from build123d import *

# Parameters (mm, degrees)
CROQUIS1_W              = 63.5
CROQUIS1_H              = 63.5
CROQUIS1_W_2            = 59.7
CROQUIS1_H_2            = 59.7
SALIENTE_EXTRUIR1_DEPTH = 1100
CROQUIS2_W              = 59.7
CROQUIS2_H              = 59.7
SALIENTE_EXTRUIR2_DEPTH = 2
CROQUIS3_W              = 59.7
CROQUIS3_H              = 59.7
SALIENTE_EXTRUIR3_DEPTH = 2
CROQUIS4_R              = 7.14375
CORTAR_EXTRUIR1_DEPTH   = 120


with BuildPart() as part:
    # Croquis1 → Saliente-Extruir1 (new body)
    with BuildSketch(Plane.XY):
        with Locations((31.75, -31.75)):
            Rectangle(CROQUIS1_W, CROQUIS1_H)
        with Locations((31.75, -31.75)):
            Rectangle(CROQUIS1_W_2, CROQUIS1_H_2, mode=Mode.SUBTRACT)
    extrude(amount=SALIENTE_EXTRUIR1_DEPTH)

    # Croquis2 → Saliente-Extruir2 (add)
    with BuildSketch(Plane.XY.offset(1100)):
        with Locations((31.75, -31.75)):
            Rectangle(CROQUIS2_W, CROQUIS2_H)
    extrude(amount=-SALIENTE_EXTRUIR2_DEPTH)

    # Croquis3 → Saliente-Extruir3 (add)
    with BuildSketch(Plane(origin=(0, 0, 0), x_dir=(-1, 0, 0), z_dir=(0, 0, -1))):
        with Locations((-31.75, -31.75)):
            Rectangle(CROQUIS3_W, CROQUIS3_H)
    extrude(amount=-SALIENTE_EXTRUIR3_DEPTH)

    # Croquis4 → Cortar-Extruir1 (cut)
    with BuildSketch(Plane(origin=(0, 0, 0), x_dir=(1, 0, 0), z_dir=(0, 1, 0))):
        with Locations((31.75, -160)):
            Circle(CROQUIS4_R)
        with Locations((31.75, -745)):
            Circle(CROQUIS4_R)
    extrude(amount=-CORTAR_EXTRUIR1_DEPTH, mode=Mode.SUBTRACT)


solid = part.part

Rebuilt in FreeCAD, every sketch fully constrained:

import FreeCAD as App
import Part
import Sketcher

V = App.Vector
Q = App.Units.Quantity

doc = App.newDocument("Part")
body = doc.addObject("PartDesign::Body", "Body")

# Sketch on XY plane
sketch1 = body.newObject("Sketcher::SketchObject", "Sketch")
sketch1.AttachmentSupport = (doc.getObject("XY_Plane"), [""])
sketch1.MapMode = "FlatFace"
sketch1.addGeometry(Part.LineSegment(V(0, 0, 0), V(0, -63.5, 0)), False)
sketch1.addGeometry(Part.LineSegment(V(0, -63.5, 0), V(63.5, -63.5, 0)), False)
sketch1.addGeometry(Part.LineSegment(V(63.5, -63.5, 0), V(63.5, 0, 0)), False)
sketch1.addGeometry(Part.LineSegment(V(63.5, 0, 0), V(0, 0, 0)), False)
sketch1.addGeometry(Part.LineSegment(V(61.6, -61.6, 0), V(1.9, -61.6, 0)), False)
sketch1.addGeometry(Part.LineSegment(V(1.9, -61.6, 0), V(1.9, -1.9, 0)), False)
sketch1.addGeometry(Part.LineSegment(V(1.9, -1.9, 0), V(61.6, -1.9, 0)), False)
sketch1.addGeometry(Part.LineSegment(V(61.6, -1.9, 0), V(61.6, -61.6, 0)), False)
sketch1.addConstraint(Sketcher.Constraint("Coincident", 0, 2, 1, 1))
sketch1.addConstraint(Sketcher.Constraint("Coincident", 1, 2, 2, 1))
sketch1.addConstraint(Sketcher.Constraint("Coincident", 2, 2, 3, 1))
sketch1.addConstraint(Sketcher.Constraint("Coincident", 3, 2, 0, 1))
sketch1.addConstraint(Sketcher.Constraint("Coincident", 4, 2, 5, 1))
sketch1.addConstraint(Sketcher.Constraint("Coincident", 5, 2, 6, 1))
sketch1.addConstraint(Sketcher.Constraint("Coincident", 6, 2, 7, 1))
sketch1.addConstraint(Sketcher.Constraint("Coincident", 7, 2, 4, 1))
sketch1.addConstraint(Sketcher.Constraint("Vertical", 0))
sketch1.addConstraint(Sketcher.Constraint("Horizontal", 1))
sketch1.addConstraint(Sketcher.Constraint("Vertical", 2))
sketch1.addConstraint(Sketcher.Constraint("Horizontal", 3))
sketch1.addConstraint(Sketcher.Constraint("Horizontal", 4))
sketch1.addConstraint(Sketcher.Constraint("Vertical", 5))
sketch1.addConstraint(Sketcher.Constraint("Horizontal", 6))
sketch1.addConstraint(Sketcher.Constraint("Vertical", 7))
sketch1.addConstraint(Sketcher.Constraint("Coincident", 3, 2, -1, 1))
sketch1.addConstraint(Sketcher.Constraint("Equal", 3, 0))
sketch1.addConstraint(Sketcher.Constraint("Equal", 6, 5))
sketch1.addConstraint(Sketcher.Constraint("DistanceX", 1, 1, 1, 2, Q("63.5 mm")))
sketch1.addConstraint(Sketcher.Constraint("DistanceX", 4, 2, 4, 1, Q("59.7 mm")))
sketch1.addConstraint(Sketcher.Constraint("DistanceX", -1, 1, 4, 2, Q("1.9 mm")))
sketch1.addConstraint(Sketcher.Constraint("DistanceY", 4, 2, -1, 1, Q("61.6 mm")))
pad1 = body.newObject("PartDesign::Pad", "Pad")
pad1.Profile = sketch1
pad1.Length = 1100

# Sketch on XY plane
sketch2 = body.newObject("Sketcher::SketchObject", "Sketch001")
sketch2.AttachmentSupport = (doc.getObject("XY_Plane"), [""])
sketch2.MapMode = "FlatFace"
sketch2.AttachmentOffset = App.Placement(V(0, 0, 1100), App.Rotation())
sketch2.addGeometry(Part.LineSegment(V(1.9, -1.9, 0), V(1.9, -61.6, 0)), False)
sketch2.addGeometry(Part.LineSegment(V(1.9, -61.6, 0), V(61.6, -61.6, 0)), False)
sketch2.addGeometry(Part.LineSegment(V(61.6, -61.6, 0), V(61.6, -1.9, 0)), False)
sketch2.addGeometry(Part.LineSegment(V(61.6, -1.9, 0), V(1.9, -1.9, 0)), False)
sketch2.addConstraint(Sketcher.Constraint("Coincident", 0, 2, 1, 1))
sketch2.addConstraint(Sketcher.Constraint("Coincident", 1, 2, 2, 1))
sketch2.addConstraint(Sketcher.Constraint("Coincident", 2, 2, 3, 1))
sketch2.addConstraint(Sketcher.Constraint("Coincident", 3, 2, 0, 1))
sketch2.addConstraint(Sketcher.Constraint("Vertical", 0))
sketch2.addConstraint(Sketcher.Constraint("Horizontal", 1))
sketch2.addConstraint(Sketcher.Constraint("Vertical", 2))
sketch2.addConstraint(Sketcher.Constraint("Horizontal", 3))
sketch2.addConstraint(Sketcher.Constraint("Equal", 3, 0))
sketch2.addConstraint(Sketcher.Constraint("DistanceX", 1, 1, 1, 2, Q("59.7 mm")))
sketch2.addConstraint(Sketcher.Constraint("DistanceX", -1, 1, 0, 2, Q("1.9 mm")))
sketch2.addConstraint(Sketcher.Constraint("DistanceY", 0, 2, -1, 1, Q("61.6 mm")))
pad2 = body.newObject("PartDesign::Pad", "Pad001")
pad2.Profile = sketch2
pad2.Length = 2
pad2.Reversed = True

# Sketch on XY plane
sketch3 = body.newObject("Sketcher::SketchObject", "Sketch002")
sketch3.AttachmentSupport = (doc.getObject("XY_Plane"), [""])
sketch3.MapMode = "FlatFace"
sketch3.addGeometry(Part.LineSegment(V(61.6, -1.9, 0), V(61.6, -61.6, 0)), False)
sketch3.addGeometry(Part.LineSegment(V(61.6, -61.6, 0), V(1.9, -61.6, 0)), False)
sketch3.addGeometry(Part.LineSegment(V(1.9, -61.6, 0), V(1.9, -1.9, 0)), False)
sketch3.addGeometry(Part.LineSegment(V(1.9, -1.9, 0), V(61.6, -1.9, 0)), False)
sketch3.addConstraint(Sketcher.Constraint("Coincident", 0, 2, 1, 1))
sketch3.addConstraint(Sketcher.Constraint("Coincident", 1, 2, 2, 1))
sketch3.addConstraint(Sketcher.Constraint("Coincident", 2, 2, 3, 1))
sketch3.addConstraint(Sketcher.Constraint("Coincident", 3, 2, 0, 1))
sketch3.addConstraint(Sketcher.Constraint("Vertical", 0))
sketch3.addConstraint(Sketcher.Constraint("Horizontal", 1))
sketch3.addConstraint(Sketcher.Constraint("Vertical", 2))
sketch3.addConstraint(Sketcher.Constraint("Horizontal", 3))
sketch3.addConstraint(Sketcher.Constraint("Equal", 3, 0))
sketch3.addConstraint(Sketcher.Constraint("DistanceX", 1, 2, 1, 1, Q("59.7 mm")))
sketch3.addConstraint(Sketcher.Constraint("DistanceX", -1, 1, 0, 2, Q("61.6 mm")))
sketch3.addConstraint(Sketcher.Constraint("DistanceY", 0, 2, -1, 1, Q("61.6 mm")))
pad3 = body.newObject("PartDesign::Pad", "Pad002")
pad3.Profile = sketch3
pad3.Length = 2

# Sketch on XZ plane
sketch4 = body.newObject("Sketcher::SketchObject", "Sketch003")
sketch4.AttachmentSupport = (doc.getObject("XZ_Plane"), [""])
sketch4.MapMode = "FlatFace"
sketch4.addGeometry(Part.Circle(V(31.75, 160, 0), V(0, 0, 1), 7.14375), False)
sketch4.addGeometry(Part.Circle(V(31.75, 745, 0), V(0, 0, 1), 7.14375), False)
sketch4.addConstraint(Sketcher.Constraint("Equal", 0, 1))
sketch4.addConstraint(Sketcher.Constraint("Vertical", 0, 3, 1, 3))
sketch4.addConstraint(Sketcher.Constraint("DistanceY", -1, 1, 0, 3, Q("160 mm")))
sketch4.addConstraint(Sketcher.Constraint("DistanceY", -1, 1, 1, 3, Q("745 mm")))
sketch4.addConstraint(Sketcher.Constraint("Diameter", 0, Q("14.2875 mm")))
sketch4.addConstraint(Sketcher.Constraint("DistanceX", -1, 1, 0, 3, Q("31.75 mm")))
pocket1 = body.newObject("PartDesign::Pocket", "Pocket")
pocket1.Profile = sketch4
pocket1.Length = 120
pocket1.Reversed = True

doc.recompute()
